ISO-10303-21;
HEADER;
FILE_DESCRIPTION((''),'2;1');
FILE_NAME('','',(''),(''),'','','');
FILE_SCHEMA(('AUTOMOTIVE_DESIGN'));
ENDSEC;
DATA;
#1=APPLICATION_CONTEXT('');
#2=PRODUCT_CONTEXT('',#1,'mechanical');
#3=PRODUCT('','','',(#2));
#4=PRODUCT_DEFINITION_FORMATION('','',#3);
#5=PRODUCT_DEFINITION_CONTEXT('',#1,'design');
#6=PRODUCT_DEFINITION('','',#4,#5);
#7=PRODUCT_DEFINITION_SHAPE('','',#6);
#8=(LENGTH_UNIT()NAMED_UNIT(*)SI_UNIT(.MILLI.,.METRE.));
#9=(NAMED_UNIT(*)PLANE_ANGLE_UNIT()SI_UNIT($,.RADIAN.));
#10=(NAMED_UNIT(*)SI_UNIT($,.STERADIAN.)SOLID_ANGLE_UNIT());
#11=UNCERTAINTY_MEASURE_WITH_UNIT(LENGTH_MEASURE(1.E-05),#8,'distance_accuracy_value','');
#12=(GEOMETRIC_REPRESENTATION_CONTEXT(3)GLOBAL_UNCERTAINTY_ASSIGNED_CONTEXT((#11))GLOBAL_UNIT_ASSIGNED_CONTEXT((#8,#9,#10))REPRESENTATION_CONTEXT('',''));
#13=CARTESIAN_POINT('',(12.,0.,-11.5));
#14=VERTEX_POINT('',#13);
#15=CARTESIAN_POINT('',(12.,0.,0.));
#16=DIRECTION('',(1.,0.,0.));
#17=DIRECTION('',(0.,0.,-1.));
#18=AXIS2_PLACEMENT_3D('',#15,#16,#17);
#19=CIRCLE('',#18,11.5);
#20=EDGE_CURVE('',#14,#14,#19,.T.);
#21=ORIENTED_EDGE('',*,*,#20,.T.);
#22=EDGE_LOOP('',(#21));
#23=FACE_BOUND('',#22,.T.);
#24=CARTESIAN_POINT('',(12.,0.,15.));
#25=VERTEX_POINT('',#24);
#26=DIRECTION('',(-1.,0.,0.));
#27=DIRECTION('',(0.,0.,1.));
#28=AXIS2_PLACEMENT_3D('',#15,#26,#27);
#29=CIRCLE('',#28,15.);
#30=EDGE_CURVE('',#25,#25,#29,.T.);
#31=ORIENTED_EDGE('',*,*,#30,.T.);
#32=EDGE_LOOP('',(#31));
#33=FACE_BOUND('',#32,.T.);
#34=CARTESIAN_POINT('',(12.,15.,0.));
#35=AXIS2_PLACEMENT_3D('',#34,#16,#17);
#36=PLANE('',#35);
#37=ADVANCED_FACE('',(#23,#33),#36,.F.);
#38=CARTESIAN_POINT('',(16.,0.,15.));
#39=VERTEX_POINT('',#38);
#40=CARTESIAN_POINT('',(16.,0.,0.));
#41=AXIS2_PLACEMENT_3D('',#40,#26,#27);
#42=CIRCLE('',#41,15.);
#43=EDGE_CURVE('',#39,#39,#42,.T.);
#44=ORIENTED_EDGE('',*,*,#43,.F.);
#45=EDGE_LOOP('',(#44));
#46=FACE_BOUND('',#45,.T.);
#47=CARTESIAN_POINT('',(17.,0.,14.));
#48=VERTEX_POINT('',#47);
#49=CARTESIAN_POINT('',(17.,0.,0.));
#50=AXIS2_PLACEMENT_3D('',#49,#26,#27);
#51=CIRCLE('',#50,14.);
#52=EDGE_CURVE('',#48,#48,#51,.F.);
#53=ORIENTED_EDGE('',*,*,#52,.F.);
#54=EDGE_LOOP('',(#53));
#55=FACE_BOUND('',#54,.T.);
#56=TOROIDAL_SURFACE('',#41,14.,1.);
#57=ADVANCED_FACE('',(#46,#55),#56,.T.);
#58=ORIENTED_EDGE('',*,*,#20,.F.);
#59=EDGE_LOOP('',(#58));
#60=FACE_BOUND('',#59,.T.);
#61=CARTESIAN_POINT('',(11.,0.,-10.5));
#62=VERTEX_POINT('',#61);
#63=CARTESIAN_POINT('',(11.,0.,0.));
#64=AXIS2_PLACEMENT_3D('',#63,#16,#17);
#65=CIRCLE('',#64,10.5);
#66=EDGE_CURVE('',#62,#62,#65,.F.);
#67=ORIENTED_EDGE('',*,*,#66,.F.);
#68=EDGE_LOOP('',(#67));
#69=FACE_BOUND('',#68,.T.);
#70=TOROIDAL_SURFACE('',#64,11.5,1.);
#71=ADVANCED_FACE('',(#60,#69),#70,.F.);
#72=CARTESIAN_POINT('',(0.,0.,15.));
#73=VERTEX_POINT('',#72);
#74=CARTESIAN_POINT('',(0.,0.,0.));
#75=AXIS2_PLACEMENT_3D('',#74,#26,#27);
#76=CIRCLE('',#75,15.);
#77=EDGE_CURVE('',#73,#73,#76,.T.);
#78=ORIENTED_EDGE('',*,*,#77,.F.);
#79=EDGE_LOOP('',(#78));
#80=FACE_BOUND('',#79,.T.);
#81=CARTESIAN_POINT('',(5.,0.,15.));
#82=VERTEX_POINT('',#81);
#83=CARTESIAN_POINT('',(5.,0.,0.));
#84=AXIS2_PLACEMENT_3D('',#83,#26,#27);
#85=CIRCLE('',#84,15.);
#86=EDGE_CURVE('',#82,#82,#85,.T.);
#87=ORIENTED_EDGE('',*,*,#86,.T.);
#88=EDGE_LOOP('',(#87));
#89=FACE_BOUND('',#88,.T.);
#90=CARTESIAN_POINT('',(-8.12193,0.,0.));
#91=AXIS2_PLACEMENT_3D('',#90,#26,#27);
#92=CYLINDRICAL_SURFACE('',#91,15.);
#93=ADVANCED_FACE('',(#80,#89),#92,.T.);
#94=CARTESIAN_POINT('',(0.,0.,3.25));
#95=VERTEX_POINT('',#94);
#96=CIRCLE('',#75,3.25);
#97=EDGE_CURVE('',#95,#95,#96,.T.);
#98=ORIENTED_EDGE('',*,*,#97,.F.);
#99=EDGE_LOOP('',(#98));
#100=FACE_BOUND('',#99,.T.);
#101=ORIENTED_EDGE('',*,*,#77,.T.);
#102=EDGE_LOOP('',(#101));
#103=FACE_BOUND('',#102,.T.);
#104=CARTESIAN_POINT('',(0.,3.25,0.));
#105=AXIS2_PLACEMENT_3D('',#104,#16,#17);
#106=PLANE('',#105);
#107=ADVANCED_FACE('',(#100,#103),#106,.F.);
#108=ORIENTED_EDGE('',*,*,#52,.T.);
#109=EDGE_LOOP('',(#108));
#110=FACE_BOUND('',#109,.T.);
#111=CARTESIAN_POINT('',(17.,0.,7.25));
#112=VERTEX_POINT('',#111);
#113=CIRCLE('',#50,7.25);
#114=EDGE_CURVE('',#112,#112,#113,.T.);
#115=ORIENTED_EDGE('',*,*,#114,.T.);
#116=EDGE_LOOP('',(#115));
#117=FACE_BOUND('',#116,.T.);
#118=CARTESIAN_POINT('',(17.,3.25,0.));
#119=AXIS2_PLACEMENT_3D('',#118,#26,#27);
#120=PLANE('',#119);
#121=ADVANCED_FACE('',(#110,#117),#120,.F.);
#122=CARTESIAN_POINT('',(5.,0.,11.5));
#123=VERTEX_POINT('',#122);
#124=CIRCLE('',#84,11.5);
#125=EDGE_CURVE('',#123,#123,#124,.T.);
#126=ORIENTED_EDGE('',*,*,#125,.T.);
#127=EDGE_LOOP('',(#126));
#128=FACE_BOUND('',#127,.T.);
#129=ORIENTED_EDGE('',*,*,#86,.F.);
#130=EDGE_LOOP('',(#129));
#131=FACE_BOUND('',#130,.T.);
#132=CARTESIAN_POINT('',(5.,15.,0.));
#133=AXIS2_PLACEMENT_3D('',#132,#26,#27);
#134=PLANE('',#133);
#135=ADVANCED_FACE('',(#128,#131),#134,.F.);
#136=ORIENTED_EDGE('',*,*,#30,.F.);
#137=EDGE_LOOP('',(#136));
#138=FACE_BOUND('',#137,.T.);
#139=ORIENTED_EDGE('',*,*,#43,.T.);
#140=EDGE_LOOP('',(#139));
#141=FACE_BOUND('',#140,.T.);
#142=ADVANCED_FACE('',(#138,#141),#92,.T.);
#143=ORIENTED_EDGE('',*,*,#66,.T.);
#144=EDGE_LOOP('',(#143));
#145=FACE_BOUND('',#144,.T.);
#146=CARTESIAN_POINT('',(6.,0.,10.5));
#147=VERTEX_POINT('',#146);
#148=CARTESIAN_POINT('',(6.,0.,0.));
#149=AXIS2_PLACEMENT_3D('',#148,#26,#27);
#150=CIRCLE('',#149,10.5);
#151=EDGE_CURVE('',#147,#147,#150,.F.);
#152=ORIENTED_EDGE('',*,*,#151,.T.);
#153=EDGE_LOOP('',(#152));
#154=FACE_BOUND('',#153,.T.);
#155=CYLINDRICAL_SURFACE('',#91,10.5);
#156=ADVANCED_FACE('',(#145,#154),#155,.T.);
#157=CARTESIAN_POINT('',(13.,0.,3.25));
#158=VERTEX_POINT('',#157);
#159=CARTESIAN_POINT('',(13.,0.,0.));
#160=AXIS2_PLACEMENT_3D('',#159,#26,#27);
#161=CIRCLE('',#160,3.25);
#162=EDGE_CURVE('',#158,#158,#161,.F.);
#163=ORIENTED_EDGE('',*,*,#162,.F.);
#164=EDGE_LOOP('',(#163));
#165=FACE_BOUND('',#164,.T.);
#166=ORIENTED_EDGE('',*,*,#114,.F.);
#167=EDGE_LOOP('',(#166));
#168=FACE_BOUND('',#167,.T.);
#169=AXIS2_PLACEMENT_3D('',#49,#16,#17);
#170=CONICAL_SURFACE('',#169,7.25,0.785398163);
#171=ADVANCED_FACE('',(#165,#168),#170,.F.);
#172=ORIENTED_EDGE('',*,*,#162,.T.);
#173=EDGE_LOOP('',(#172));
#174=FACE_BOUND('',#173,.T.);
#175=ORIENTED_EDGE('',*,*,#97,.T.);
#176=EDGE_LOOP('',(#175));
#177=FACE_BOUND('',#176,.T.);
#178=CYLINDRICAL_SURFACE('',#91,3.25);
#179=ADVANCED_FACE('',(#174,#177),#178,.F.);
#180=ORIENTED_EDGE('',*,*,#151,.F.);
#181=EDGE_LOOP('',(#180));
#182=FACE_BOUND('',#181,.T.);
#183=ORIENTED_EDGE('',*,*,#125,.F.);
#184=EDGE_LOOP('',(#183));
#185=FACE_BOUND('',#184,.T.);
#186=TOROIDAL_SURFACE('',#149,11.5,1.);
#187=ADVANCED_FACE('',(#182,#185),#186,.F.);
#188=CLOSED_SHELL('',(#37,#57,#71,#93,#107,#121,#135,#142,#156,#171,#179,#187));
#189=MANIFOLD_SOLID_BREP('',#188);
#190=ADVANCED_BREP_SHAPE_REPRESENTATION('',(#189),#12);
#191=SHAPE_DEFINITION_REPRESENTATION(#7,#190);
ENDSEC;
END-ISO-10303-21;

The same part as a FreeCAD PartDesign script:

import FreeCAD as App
import Part
import Sketcher
from FreeCAD import Vector


def edges_at(feature, points):
    """Names of the edges that pass closest to the given points."""
    edges = feature.Shape.Edges
    near = lambda p: min(range(len(edges)), key=lambda i: edges[i].distToShape(Part.Vertex(*p))[0])
    return sorted({f"Edge{near(p) + 1}" for p in points})


def add_polygon(sketch, points):
    """Adds a closed chain of lines whose ends are joined by coincident constraints."""
    first, n = sketch.GeometryCount, len(points)
    for a, b in zip(points, points[1:] + points[:1]):
        sketch.addGeometry(Part.LineSegment(App.Vector(*a, 0), App.Vector(*b, 0)), False)
    for i in range(n):
        sketch.addConstraint(Sketcher.Constraint("Coincident", first + i, 2, first + (i + 1) % n, 1))

doc = App.newDocument("Part")
body = doc.addObject("PartDesign::Body", "Body")

# Sketch on XY plane
sketch1 = body.newObject("Sketcher::SketchObject", "Sketch")
sketch1.AttachmentSupport = (doc.getObject("XY_Plane"), [""])
sketch1.MapMode = "FlatFace"
add_polygon(sketch1, [(17, 15), (12, 15), (12, 10.5), (5, 10.5), (5, 15), (0, 15), (0, 3.2), (17, 3.2)])  # lines 0-7
sketch1.addConstraint([
    Sketcher.Constraint("Horizontal", 0),
    Sketcher.Constraint("Vertical", 1),
    Sketcher.Constraint("Horizontal", 2),
    Sketcher.Constraint("Vertical", 3),
    Sketcher.Constraint("Horizontal", 4),
    Sketcher.Constraint("Vertical", 5),
    Sketcher.Constraint("Horizontal", 6),
    Sketcher.Constraint("Vertical", 7),
    Sketcher.Constraint("PointOnObject", 4, 2, -2),
    Sketcher.Constraint("Horizontal", 0, 2, 3, 2),
    Sketcher.Constraint("Equal", 0, 4),
    Sketcher.Constraint("DistanceX", 0, 2, 0, 1, 5.0),
    Sketcher.Constraint("DistanceX", 2, 2, 2, 1, 7.0),
    Sketcher.Constraint("DistanceY", 1, 2, 1, 1, 4.5),
    Sketcher.Constraint("DistanceY", -1, 1, 0, 2, 15.0),
    Sketcher.Constraint("DistanceY", 5, 2, 5, 1, 11.75),
])
revolution = body.newObject("PartDesign::Revolution", "Revolution")
revolution.Profile = sketch1
revolution.ReferenceAxis = (sketch1, ["H_Axis"])
revolution.Angle = 360
doc.recompute()

fillet = body.newObject("PartDesign::Fillet", "Fillet")
fillet.Base = (revolution, edges_at(revolution, [(17, 0, -15)]))
fillet.Radius = 1
doc.recompute()

fillet2 = body.newObject("PartDesign::Fillet", "Fillet001")
fillet2.Base = (fillet, edges_at(fillet, [(12, 0, -10.5), (5, 0, -10.5)]))
fillet2.Radius = 1
doc.recompute()

chamfer = body.newObject("PartDesign::Chamfer", "Chamfer")
chamfer.Base = (fillet2, edges_at(fillet2, [(17, 0, -3.25)]))
chamfer.Size = 4

doc.recompute()
